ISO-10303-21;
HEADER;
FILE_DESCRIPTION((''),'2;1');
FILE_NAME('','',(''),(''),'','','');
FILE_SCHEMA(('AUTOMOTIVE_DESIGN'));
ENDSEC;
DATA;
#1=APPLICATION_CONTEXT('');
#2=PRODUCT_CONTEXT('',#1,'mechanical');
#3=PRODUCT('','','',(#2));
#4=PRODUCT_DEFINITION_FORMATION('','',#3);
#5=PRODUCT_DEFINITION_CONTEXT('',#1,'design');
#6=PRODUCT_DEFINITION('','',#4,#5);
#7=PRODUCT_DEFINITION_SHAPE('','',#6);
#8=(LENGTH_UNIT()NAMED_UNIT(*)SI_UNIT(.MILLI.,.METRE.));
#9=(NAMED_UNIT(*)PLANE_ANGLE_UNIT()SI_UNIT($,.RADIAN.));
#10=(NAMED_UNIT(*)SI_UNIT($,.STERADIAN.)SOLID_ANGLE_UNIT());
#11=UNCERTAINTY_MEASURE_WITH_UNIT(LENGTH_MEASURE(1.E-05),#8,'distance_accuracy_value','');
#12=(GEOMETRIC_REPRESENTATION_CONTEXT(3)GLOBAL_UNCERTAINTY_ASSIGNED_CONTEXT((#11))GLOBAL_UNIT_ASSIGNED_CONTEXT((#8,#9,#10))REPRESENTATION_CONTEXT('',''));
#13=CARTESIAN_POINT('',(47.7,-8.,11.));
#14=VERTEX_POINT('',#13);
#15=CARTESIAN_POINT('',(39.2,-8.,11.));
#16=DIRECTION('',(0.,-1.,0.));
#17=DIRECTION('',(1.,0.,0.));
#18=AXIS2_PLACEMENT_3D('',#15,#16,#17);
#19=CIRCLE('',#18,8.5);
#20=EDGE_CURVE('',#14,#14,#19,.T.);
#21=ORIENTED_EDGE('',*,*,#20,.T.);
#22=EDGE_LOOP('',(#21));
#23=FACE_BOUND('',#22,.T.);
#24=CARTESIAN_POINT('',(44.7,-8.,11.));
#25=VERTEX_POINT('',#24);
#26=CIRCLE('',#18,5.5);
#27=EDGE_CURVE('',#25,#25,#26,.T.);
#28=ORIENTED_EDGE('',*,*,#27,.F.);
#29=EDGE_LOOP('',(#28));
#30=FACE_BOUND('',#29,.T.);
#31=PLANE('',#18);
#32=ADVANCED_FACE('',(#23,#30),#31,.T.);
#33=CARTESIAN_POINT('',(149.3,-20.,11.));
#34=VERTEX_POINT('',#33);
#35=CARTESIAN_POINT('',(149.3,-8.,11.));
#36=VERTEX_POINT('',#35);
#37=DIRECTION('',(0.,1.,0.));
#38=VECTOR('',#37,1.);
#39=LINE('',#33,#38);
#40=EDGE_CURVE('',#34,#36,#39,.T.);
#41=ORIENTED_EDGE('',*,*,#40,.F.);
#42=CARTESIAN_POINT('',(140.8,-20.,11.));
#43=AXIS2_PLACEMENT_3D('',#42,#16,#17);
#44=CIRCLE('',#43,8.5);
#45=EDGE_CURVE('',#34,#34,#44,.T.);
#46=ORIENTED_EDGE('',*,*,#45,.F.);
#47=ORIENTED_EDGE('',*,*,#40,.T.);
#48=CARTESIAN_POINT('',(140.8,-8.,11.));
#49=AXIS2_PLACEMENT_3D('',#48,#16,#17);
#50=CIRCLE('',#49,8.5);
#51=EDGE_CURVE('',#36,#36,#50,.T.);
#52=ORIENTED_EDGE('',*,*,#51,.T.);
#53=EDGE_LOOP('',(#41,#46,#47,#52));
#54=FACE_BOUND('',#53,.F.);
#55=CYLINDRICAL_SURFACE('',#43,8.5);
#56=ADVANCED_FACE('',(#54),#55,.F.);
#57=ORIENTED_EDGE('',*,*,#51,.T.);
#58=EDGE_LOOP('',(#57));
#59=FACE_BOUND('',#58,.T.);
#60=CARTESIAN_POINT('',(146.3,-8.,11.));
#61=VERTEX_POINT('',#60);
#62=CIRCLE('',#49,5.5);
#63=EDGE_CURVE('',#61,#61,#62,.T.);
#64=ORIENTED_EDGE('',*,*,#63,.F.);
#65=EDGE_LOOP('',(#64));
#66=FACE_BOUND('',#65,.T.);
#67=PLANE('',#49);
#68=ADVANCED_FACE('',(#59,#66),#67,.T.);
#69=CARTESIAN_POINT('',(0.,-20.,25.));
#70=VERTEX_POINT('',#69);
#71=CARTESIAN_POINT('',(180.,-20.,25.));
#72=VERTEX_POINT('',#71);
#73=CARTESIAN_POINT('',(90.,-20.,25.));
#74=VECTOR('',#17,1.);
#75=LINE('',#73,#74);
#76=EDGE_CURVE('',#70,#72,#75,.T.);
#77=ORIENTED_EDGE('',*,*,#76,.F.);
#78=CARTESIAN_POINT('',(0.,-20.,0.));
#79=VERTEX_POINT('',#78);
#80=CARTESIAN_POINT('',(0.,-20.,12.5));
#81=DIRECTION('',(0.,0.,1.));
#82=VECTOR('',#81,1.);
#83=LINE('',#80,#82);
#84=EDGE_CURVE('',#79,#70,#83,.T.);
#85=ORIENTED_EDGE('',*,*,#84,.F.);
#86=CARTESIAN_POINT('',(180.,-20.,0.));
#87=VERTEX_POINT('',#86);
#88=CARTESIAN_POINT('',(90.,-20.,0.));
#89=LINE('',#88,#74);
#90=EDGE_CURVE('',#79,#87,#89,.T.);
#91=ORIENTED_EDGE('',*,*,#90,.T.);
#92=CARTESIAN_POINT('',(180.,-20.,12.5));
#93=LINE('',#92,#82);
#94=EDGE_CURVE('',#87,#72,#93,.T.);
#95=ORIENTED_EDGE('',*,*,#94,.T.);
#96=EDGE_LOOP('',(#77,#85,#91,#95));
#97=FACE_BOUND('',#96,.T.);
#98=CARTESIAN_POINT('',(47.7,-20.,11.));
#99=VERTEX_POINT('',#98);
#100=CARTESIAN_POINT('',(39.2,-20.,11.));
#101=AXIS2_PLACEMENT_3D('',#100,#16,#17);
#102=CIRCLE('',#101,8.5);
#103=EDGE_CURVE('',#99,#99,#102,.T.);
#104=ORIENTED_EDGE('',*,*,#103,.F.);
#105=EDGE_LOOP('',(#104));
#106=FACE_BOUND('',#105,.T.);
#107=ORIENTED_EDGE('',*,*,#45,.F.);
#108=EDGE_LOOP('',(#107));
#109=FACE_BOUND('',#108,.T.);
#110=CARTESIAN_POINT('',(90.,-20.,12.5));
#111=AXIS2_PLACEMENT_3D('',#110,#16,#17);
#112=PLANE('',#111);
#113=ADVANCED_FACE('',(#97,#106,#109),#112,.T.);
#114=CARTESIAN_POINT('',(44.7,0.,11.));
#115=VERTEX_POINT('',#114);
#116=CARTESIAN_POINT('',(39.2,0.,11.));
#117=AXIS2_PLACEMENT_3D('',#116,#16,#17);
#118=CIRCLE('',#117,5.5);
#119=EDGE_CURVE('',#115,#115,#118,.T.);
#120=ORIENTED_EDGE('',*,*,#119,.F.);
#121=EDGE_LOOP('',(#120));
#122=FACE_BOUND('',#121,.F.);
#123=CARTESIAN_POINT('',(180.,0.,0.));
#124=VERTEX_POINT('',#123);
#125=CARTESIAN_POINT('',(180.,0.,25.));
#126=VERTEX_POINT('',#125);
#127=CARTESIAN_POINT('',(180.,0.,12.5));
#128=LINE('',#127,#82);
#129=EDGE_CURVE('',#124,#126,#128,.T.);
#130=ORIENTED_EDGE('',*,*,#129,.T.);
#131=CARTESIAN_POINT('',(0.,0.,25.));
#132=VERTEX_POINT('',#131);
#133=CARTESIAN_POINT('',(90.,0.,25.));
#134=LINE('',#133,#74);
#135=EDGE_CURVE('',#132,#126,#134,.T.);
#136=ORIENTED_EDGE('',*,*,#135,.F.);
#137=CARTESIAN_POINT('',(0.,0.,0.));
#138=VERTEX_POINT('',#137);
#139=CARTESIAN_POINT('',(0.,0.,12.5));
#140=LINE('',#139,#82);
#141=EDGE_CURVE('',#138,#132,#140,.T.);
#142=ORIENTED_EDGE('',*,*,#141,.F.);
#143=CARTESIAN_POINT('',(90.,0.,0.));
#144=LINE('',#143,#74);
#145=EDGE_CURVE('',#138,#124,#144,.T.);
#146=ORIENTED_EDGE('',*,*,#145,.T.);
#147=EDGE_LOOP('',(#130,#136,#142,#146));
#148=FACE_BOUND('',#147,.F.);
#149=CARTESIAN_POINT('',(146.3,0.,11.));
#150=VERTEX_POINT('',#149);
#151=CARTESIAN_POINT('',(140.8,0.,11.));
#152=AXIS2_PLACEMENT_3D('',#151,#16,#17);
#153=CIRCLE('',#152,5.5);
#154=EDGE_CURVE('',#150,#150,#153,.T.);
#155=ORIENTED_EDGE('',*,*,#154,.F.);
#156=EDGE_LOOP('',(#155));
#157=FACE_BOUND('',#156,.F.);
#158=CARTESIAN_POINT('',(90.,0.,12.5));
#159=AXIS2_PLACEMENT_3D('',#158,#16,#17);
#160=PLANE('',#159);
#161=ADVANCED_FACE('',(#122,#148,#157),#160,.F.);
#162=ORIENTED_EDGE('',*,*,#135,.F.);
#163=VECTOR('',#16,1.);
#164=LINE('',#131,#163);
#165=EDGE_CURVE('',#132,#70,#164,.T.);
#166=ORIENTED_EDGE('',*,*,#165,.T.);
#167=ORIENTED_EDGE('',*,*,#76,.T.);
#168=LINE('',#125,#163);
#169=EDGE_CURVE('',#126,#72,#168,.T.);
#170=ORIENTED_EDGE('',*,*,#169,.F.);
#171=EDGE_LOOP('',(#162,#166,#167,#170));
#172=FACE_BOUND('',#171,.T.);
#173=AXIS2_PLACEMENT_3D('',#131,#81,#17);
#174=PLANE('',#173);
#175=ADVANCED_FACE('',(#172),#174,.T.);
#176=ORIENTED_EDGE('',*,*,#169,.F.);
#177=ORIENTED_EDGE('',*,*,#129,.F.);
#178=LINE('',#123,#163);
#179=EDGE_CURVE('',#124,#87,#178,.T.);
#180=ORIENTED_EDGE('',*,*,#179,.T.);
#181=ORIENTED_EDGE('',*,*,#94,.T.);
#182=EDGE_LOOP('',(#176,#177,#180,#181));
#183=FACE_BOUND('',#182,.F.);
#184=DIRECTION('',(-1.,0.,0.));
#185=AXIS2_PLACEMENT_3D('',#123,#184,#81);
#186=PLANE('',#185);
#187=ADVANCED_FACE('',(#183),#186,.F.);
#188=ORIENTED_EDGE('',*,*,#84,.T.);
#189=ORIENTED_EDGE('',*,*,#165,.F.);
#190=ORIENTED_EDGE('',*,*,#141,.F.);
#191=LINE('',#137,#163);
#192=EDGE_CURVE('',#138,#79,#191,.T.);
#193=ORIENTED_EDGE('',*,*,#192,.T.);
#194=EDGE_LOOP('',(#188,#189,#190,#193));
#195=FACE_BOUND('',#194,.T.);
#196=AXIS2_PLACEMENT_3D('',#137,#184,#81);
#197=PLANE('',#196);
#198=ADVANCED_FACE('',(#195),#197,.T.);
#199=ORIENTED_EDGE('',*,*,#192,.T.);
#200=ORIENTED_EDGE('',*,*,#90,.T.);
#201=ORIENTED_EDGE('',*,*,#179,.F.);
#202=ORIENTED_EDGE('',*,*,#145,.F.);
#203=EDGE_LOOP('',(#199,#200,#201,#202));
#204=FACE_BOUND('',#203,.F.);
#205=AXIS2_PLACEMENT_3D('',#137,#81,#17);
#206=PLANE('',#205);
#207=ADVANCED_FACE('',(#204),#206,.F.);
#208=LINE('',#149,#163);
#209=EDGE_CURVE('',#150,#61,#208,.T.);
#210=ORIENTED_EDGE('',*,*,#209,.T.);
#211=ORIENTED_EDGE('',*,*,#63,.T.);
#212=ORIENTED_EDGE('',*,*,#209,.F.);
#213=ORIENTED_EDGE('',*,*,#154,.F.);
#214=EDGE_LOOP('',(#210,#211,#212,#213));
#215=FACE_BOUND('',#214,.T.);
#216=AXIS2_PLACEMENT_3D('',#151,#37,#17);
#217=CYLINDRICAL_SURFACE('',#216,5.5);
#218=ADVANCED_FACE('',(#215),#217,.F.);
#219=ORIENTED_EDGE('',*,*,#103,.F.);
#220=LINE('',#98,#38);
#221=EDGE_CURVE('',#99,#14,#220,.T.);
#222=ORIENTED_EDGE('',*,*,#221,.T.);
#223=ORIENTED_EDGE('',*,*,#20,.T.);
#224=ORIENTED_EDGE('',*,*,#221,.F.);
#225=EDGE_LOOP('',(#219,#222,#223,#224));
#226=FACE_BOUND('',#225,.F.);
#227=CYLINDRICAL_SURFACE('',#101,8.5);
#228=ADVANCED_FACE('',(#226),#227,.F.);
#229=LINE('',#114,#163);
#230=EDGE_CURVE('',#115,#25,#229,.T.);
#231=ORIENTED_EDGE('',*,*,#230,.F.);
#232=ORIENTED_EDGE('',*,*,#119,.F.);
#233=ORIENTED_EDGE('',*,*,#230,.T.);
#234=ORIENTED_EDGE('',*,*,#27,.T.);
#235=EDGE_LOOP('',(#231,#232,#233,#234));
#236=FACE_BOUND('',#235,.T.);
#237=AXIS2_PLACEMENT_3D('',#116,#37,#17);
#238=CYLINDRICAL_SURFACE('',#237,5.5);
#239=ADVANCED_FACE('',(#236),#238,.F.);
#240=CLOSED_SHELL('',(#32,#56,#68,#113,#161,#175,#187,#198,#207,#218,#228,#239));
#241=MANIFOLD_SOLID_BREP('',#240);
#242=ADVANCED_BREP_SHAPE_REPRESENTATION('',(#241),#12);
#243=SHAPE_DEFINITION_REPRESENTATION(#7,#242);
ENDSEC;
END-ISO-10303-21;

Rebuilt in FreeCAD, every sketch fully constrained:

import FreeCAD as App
import Part
import Sketcher
from FreeCAD import Vector
Q = App.Units.Quantity


def add_polygon(sketch, points):
    """Adds a closed chain of lines whose ends are joined by coincident constraints."""
    first, n = sketch.GeometryCount, len(points)
    for a, b in zip(points, points[1:] + points[:1]):
        sketch.addGeometry(Part.LineSegment(App.Vector(*a, 0), App.Vector(*b, 0)), False)
    for i in range(n):
        sketch.addConstraint(Sketcher.Constraint("Coincident", first + i, 2, first + (i + 1) % n, 1))

doc = App.newDocument("Part")
body = doc.addObject("PartDesign::Body", "Body")

# Sketch on XZ plane
sketch1 = body.newObject("Sketcher::SketchObject", "Sketch")
sketch1.AttachmentSupport = (doc.getObject("XZ_Plane"), [""])
sketch1.MapMode = "FlatFace"
add_polygon(sketch1, [(0, 25), (0, 0), (180, 0), (180, 25)])  # lines 0-3
sketch1.addGeometry(Part.Circle(Vector(39, 11, 0), Vector(0, 0, 1), 6), False)  # 4
sketch1.addGeometry(Part.Circle(Vector(141, 11, 0), Vector(0, 0, 1), 6), False)  # 5
sketch1.addConstraint([
    Sketcher.Constraint("Vertical", 0),
    Sketcher.Constraint("Horizontal", 1),
    Sketcher.Constraint("Vertical", 2),
    Sketcher.Constraint("Horizontal", 3),
    Sketcher.Constraint("Coincident", 0, 2, -1, 1),
    Sketcher.Constraint("Equal", 4, 5),
    Sketcher.Constraint("Horizontal", 4, 3, 5, 3),
    Sketcher.Constraint("Diameter", 4, Q("11 mm")),
    Sketcher.Constraint("DistanceX", 1, 1, 1, 2, Q("180 mm")),
    Sketcher.Constraint("DistanceY", 0, 2, 0, 1, Q("25 mm")),
    Sketcher.Constraint("DistanceY", -1, 1, 4, 3, Q("11 mm")),
    Sketcher.Constraint("DistanceX", -1, 1, 4, 3, Q("39.2 mm")),
    Sketcher.Constraint("DistanceX", -1, 1, 5, 3, Q("140.8 mm")),
])
pad1 = body.newObject("PartDesign::Pad", "Pad")
pad1.Profile = sketch1
pad1.Length = 20

# Sketch on XZ plane
sketch2 = body.newObject("Sketcher::SketchObject", "Sketch001")
sketch2.AttachmentSupport = (doc.getObject("XZ_Plane"), [""])
sketch2.MapMode = "FlatFace"
sketch2.AttachmentOffset = App.Placement(Vector(0, 0, 20), App.Rotation())
sketch2.addGeometry([
    Part.Circle(Vector(39, 11, 0), Vector(0, 0, 1), 8),
    Part.Circle(Vector(39, 11, 0), Vector(0, 0, 1), 6),
    Part.Circle(Vector(141, 11, 0), Vector(0, 0, 1), 8),
    Part.Circle(Vector(141, 11, 0), Vector(0, 0, 1), 6),
], False)
sketch2.addConstraint([
    Sketcher.Constraint("Coincident", 1, 3, 0, 3),
    Sketcher.Constraint("Coincident", 3, 3, 2, 3),
    Sketcher.Constraint("Equal", 0, 2),
    Sketcher.Constraint("Equal", 1, 3),
    Sketcher.Constraint("Horizontal", 1, 3, 2, 3),
    Sketcher.Constraint("Diameter", 0, Q("17 mm")),
    Sketcher.Constraint("Diameter", 1, Q("11 mm")),
    Sketcher.Constraint("DistanceY", -1, 1, 0, 3, Q("11 mm")),
    Sketcher.Constraint("DistanceX", -1, 1, 0, 3, Q("39.2 mm")),
    Sketcher.Constraint("DistanceX", -1, 1, 2, 3, Q("140.8 mm")),
])
pocket1 = body.newObject("PartDesign::Pocket", "Pocket")
pocket1.Profile = sketch2
pocket1.Length = 12

doc.recompute()
